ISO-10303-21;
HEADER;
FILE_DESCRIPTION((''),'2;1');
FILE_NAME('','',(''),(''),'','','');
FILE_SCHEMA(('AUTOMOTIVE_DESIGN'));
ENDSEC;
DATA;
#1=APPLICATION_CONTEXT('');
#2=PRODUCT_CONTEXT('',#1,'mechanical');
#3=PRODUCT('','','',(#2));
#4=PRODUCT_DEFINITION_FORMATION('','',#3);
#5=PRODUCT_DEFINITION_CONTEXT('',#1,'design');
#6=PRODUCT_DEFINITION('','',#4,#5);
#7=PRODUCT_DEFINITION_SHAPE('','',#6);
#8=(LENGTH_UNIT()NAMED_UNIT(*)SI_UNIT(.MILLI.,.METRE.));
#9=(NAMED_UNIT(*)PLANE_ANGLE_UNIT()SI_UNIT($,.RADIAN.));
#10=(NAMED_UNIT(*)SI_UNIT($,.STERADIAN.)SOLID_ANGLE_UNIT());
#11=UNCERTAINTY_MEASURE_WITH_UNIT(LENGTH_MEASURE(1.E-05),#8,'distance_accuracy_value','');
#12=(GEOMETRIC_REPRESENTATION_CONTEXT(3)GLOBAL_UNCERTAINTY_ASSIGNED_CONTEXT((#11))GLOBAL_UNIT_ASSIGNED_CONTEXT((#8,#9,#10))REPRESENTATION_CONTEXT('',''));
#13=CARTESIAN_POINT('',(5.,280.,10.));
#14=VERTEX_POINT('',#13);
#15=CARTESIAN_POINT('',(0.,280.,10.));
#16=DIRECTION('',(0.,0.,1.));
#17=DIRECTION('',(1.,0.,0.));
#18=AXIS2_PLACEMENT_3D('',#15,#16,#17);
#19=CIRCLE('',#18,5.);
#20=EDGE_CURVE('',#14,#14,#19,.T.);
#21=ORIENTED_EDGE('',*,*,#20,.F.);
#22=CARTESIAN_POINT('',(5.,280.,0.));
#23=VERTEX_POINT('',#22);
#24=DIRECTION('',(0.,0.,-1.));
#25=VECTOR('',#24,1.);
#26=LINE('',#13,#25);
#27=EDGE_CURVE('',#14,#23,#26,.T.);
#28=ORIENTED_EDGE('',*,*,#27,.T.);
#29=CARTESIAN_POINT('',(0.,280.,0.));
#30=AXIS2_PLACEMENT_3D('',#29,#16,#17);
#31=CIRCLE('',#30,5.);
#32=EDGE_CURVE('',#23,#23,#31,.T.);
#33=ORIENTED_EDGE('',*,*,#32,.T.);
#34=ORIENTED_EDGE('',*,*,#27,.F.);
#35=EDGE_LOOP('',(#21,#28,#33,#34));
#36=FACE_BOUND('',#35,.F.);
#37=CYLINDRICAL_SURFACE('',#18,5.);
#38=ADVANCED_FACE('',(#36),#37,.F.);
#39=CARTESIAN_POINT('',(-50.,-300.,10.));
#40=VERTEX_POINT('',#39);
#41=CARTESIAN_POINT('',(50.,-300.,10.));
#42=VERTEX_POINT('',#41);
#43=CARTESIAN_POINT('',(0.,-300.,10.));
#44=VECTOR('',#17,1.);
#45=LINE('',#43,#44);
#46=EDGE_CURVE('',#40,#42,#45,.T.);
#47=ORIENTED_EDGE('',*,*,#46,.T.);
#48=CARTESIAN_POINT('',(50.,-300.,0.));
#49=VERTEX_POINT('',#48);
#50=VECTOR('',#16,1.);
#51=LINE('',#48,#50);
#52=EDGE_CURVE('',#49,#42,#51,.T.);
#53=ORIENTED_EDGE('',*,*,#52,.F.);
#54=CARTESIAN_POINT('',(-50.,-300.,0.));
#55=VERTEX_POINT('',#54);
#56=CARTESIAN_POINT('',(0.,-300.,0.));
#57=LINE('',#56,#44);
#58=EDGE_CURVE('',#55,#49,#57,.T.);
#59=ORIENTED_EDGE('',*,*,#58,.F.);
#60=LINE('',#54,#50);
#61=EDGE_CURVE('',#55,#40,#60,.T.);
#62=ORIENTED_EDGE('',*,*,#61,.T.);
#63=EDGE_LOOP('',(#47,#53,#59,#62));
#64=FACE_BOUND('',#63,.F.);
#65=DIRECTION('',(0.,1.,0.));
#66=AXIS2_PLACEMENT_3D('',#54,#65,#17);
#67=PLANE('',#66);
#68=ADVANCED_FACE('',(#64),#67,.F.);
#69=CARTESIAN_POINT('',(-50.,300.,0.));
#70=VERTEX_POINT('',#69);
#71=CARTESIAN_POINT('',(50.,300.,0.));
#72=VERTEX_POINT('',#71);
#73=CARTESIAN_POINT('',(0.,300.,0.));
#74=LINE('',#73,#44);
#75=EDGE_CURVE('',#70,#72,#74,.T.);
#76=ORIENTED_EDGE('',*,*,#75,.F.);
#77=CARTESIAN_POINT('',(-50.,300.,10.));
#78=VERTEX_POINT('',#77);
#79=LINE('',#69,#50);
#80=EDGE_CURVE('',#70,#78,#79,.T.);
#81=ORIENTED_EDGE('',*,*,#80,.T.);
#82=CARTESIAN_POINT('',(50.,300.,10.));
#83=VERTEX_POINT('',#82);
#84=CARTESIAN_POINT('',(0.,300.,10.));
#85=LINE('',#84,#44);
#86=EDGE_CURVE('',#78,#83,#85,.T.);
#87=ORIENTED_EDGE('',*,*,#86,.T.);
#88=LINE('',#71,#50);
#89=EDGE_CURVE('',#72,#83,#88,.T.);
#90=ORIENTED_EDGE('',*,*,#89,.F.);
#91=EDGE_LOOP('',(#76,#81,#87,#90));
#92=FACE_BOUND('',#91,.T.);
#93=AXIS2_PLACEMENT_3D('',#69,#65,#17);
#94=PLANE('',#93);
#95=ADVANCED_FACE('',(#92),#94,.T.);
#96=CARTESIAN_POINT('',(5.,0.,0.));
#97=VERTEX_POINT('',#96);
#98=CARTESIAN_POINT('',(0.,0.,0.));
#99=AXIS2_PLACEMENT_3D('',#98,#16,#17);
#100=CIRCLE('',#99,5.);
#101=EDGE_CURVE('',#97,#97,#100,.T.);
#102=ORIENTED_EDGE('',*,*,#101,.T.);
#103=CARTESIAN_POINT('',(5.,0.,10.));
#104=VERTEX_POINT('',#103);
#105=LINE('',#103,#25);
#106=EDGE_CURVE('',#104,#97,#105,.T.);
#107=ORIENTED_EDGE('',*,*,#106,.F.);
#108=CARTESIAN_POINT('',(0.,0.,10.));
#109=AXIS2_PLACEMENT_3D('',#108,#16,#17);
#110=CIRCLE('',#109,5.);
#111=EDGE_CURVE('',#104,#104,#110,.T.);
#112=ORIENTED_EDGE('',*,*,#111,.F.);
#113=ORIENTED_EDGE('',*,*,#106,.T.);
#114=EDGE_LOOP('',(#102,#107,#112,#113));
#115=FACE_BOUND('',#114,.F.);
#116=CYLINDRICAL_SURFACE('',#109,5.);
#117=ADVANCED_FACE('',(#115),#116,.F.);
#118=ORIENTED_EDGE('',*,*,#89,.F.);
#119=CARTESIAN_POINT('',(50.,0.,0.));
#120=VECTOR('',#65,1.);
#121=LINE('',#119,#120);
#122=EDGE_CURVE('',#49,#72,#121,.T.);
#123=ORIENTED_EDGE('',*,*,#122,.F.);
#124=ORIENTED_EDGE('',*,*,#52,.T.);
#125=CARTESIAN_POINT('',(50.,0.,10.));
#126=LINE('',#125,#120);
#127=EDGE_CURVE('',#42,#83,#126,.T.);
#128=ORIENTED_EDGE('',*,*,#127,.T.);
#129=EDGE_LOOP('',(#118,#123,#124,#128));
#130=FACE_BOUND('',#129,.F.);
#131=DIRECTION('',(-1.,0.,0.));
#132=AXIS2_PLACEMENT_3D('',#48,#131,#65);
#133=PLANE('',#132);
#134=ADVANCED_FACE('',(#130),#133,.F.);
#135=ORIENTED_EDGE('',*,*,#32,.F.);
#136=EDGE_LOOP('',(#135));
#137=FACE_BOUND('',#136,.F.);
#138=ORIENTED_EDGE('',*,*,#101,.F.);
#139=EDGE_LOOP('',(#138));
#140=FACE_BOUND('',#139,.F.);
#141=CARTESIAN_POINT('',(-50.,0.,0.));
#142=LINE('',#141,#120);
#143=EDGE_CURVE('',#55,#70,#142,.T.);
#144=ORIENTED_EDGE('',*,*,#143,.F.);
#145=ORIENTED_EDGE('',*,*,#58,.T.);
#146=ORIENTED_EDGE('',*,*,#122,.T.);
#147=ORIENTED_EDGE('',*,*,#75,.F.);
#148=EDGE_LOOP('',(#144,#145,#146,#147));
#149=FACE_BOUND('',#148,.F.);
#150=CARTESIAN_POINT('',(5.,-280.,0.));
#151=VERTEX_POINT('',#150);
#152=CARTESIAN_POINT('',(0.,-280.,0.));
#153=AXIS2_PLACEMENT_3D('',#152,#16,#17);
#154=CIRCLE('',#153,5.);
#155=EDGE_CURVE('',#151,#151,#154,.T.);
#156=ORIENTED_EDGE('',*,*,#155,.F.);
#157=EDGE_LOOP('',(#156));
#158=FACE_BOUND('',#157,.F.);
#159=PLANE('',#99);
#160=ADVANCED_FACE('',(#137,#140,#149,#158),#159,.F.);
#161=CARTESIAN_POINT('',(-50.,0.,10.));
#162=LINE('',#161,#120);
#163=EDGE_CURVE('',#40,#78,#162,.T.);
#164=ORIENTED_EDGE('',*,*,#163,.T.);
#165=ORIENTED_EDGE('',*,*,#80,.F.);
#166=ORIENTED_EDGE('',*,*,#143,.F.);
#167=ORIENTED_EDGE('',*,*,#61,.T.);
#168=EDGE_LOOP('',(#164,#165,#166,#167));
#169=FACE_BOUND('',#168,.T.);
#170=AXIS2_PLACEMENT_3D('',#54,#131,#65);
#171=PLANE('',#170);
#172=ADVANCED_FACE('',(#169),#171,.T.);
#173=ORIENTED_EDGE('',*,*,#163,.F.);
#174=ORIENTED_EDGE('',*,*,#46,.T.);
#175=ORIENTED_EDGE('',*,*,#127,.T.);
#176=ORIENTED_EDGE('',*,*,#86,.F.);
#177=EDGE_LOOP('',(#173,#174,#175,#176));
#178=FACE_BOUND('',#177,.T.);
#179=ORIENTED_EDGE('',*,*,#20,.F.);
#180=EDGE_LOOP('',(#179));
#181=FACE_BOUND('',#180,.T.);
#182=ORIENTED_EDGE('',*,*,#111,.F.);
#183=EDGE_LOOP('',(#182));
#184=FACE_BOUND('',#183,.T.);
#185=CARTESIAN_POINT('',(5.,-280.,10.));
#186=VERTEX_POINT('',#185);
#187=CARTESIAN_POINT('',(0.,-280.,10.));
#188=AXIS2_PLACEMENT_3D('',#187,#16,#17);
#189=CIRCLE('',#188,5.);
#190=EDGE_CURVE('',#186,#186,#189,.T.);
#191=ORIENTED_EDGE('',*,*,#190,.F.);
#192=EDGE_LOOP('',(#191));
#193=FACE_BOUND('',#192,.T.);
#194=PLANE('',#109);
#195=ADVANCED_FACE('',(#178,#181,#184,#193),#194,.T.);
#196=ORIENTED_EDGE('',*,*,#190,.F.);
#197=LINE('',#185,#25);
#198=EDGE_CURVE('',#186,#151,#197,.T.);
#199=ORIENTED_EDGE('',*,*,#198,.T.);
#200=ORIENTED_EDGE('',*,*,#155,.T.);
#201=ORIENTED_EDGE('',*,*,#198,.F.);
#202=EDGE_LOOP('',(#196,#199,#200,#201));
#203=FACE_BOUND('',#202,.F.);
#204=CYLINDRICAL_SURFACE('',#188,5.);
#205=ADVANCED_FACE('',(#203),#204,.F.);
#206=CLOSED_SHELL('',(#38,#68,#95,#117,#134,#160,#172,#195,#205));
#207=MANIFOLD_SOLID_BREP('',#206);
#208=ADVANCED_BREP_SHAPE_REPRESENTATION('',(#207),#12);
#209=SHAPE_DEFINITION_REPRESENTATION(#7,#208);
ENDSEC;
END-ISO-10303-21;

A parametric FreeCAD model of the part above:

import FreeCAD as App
import Part
import Sketcher

doc = App.newDocument("Part")
body = doc.addObject("PartDesign::Body", "Body")

sketch1 = doc.addObject("Sketcher::SketchObject", "Sketch")
body.addObject(sketch1)
sketch1.AttachmentSupport = (doc.XY_Plane, [""])
sketch1.MapMode = "FlatFace"
sketch1.addGeometry([
    Part.LineSegment(App.Vector(-50, 300, 0), App.Vector(-50, -300, 0)),
    Part.LineSegment(App.Vector(-50, -300, 0), App.Vector(50, -300, 0)),
    Part.LineSegment(App.Vector(50, -300, 0), App.Vector(50, 300, 0)),
    Part.LineSegment(App.Vector(50, 300, 0), App.Vector(-50, 300, 0)),
], False)
sketch1.addConstraint([
    Sketcher.Constraint("Coincident", 0, 2, 1, 1),
    Sketcher.Constraint("Coincident", 1, 2, 2, 1),
    Sketcher.Constraint("Coincident", 2, 2, 3, 1),
    Sketcher.Constraint("Coincident", 3, 2, 0, 1),
    Sketcher.Constraint("Vertical", 0),
    Sketcher.Constraint("Horizontal", 1),
    Sketcher.Constraint("Vertical", 2),
    Sketcher.Constraint("Horizontal", 3),
    Sketcher.Constraint("Symmetric", 0, 2, 2, 2, -1, 1),
    Sketcher.Constraint("DistanceX", 1, 1, 1, 2, 100.0),
    Sketcher.Constraint("DistanceY", 0, 2, 0, 1, 600.0),
])
pad1 = doc.addObject("PartDesign::Pad", "Pad")
body.addObject(pad1)
pad1.Profile = sketch1
pad1.Length = 10

sketch2 = doc.addObject("Sketcher::SketchObject", "Sketch001")
body.addObject(sketch2)
sketch2.AttachmentSupport = (doc.XY_Plane, [""])
sketch2.MapMode = "FlatFace"
sketch2.AttachmentOffset = App.Placement(App.Vector(0, 0, 10), App.Rotation())
sketch2.addGeometry([
    Part.Circle(App.Vector(0, 280, 0), App.Vector(0, 0, 1), 5),
    Part.Circle(App.Vector(0, 0, 0), App.Vector(0, 0, 1), 5),
    Part.Circle(App.Vector(0, -280, 0), App.Vector(0, 0, 1), 5),
], False)
sketch2.addConstraint([
    Sketcher.Constraint("Coincident", 1, 3, -1, 1),
    Sketcher.Constraint("Equal", 0, 1),
    Sketcher.Constraint("Equal", 1, 2),
    Sketcher.Constraint("Symmetric", 0, 3, 2, 3, -1, 1),
    Sketcher.Constraint("PointOnObject", 0, 3, -2),
    Sketcher.Constraint("Diameter", 0, 10.0),
    Sketcher.Constraint("DistanceY", -1, 1, 0, 3, 280.0),
])
pocket1 = doc.addObject("PartDesign::Pocket", "Pocket")
body.addObject(pocket1)
pocket1.Profile = sketch2
pocket1.Length = 25

doc.recompute()
